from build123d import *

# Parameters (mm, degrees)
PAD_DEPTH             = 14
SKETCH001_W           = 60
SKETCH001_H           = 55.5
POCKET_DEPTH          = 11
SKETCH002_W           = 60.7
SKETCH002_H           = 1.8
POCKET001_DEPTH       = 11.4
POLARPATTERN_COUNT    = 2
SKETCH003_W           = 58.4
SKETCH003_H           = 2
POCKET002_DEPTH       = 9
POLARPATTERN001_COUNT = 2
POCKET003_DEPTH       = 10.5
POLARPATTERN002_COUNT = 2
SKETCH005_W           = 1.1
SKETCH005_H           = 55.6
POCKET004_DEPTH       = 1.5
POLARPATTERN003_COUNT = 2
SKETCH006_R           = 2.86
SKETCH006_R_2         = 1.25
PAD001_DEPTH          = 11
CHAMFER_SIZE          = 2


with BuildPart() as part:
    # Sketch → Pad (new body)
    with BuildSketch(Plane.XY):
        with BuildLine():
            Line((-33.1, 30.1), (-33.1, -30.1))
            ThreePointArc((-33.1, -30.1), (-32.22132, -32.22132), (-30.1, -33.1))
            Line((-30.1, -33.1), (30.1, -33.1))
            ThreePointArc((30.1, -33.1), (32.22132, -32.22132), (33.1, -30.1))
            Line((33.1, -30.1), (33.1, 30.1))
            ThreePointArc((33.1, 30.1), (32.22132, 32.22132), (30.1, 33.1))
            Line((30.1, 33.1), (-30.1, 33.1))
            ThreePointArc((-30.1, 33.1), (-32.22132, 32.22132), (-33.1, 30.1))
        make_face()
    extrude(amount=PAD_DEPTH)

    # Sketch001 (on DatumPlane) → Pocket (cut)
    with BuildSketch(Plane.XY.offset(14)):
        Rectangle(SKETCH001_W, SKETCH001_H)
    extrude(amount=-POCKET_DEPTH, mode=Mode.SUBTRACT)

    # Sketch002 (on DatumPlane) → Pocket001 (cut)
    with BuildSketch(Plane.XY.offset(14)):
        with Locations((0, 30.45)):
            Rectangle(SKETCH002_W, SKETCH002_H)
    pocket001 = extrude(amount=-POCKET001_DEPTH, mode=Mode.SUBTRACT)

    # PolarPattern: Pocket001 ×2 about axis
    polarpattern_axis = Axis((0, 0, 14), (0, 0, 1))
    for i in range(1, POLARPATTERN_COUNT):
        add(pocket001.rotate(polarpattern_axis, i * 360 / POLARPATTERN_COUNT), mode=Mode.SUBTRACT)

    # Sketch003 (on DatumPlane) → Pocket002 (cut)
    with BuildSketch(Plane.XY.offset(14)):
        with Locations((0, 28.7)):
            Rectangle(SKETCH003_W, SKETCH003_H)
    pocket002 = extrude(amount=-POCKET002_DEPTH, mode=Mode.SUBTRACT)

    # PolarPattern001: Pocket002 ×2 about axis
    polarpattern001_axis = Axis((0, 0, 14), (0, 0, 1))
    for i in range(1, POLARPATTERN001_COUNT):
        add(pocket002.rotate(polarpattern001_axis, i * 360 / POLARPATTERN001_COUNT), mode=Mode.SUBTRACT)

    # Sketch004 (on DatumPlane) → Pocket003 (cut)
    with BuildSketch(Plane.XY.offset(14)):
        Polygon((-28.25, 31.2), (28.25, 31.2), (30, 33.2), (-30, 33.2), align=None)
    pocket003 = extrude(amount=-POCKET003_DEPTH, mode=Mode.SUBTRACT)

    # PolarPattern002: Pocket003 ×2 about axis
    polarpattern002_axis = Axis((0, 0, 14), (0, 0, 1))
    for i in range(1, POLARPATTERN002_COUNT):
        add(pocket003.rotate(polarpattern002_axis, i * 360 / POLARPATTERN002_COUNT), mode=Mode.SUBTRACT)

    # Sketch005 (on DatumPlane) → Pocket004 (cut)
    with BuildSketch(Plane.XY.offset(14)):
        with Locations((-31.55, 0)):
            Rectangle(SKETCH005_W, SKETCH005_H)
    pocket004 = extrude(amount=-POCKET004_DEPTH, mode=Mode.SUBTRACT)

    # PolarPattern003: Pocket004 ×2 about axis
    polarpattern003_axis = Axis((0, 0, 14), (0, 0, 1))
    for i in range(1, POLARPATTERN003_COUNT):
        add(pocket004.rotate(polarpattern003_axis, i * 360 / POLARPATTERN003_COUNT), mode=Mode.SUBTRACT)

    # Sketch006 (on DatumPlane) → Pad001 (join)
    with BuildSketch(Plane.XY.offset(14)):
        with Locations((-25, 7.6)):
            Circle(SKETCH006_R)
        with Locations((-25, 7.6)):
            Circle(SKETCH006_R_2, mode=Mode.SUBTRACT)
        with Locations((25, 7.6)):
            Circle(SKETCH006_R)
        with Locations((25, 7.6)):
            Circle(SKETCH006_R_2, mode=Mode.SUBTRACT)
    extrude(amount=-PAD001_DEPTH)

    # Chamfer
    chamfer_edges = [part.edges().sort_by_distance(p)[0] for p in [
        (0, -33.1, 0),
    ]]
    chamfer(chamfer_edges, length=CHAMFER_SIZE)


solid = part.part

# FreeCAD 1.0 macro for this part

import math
import FreeCAD as App
import Part
import Sketcher
Q = App.Units.Quantity


def edges_at(feature, points):
    """Names of the edges that pass closest to the given points."""
    edges = feature.Shape.Edges
    near = lambda p: min(range(len(edges)), key=lambda i: edges[i].distToShape(Part.Vertex(*p))[0])
    return sorted({f"Edge{near(p) + 1}" for p in points})

doc = App.newDocument("Part")
params = doc.addObject("Spreadsheet::Sheet", "Params")
for row, (alias, value) in enumerate([
    ("sketch1_radius", "3.000001 mm"),
    ("sketch1_width", "60.2 mm"),
    ("pad1_length", "14 mm"),
    ("sketch2_width", "60 mm"),
    ("sketch2_height", "55.5 mm"),
    ("pocket1_length", "11 mm"),
    ("sketch3_width", "60.7 mm"),
    ("sketch3_height", "1.8 mm"),
    ("pocket2_length", "11.4 mm"),
    ("sketch4_height", "2 mm"),
    ("sketch4_width", "58.4 mm"),
    ("pocket3_length", "9 mm"),
    ("sketch5_width", "60 mm"),
    ("sketch5_width2", "56.5 mm"),
    ("pocket4_length", "10.5 mm"),
    ("sketch6_width", "1.1 mm"),
    ("sketch6_height", "55.6 mm"),
    ("pocket5_length", "1.5 mm"),
    ("sketch7_diameter", "2.5 mm"),
    ("sketch7_diameter2", "5.72 mm"),
    ("pad2_length", "11 mm"),
    ("chamfer_size", "2 mm"),
], start=1):
    params.set(f"A{row}", alias)
    params.set(f"B{row}", "=" + value)
    params.setAlias(f"B{row}", alias)

body = doc.addObject("PartDesign::Body", "Body")

# Sketch on XY plane
sketch1 = doc.addObject("Sketcher::SketchObject", "Sketch")
body.addObject(sketch1)
sketch1.AttachmentSupport = (doc.XY_Plane, [""])
sketch1.MapMode = "FlatFace"
sketch1.addGeometry(Part.LineSegment(App.Vector(-33.1, 30.1, 0), App.Vector(-33.1, -30.1, 0)), False)
sketch1.addGeometry(Part.ArcOfCircle(Part.Circle(App.Vector(-30.099999, -30.099999, 0), App.Vector(0, 0, 1), 3.000001), math.radians(-179.999978), math.radians(-90.000022)), False)
sketch1.addGeometry(Part.LineSegment(App.Vector(-30.1, -33.1, 0), App.Vector(30.1, -33.1, 0)), False)
sketch1.addGeometry(Part.ArcOfCircle(Part.Circle(App.Vector(30.099999, -30.099999, 0), App.Vector(0, 0, 1), 3.000001), math.radians(-89.999978), math.radians(-0.000022)), False)
sketch1.addGeometry(Part.LineSegment(App.Vector(33.1, -30.1, 0), App.Vector(33.1, 30.1, 0)), False)
sketch1.addGeometry(Part.ArcOfCircle(Part.Circle(App.Vector(30.099999, 30.099999, 0), App.Vector(0, 0, 1), 3.000001), math.radians(0.000022), math.radians(89.999978)), False)
sketch1.addGeometry(Part.LineSegment(App.Vector(30.1, 33.1, 0), App.Vector(-30.1, 33.1, 0)), False)
sketch1.addGeometry(Part.ArcOfCircle(Part.Circle(App.Vector(-30.099999, 30.099999, 0), App.Vector(0, 0, 1), 3.000001), math.radians(90.000022), math.radians(179.999978)), False)
sketch1.addConstraint(Sketcher.Constraint("Tangent", 0, 2, 1, 1))
sketch1.addConstraint(Sketcher.Constraint("Tangent", 1, 2, 2, 1))
sketch1.addConstraint(Sketcher.Constraint("Tangent", 2, 2, 3, 1))
sketch1.addConstraint(Sketcher.Constraint("Tangent", 3, 2, 4, 1))
sketch1.addConstraint(Sketcher.Constraint("Tangent", 4, 2, 5, 1))
sketch1.addConstraint(Sketcher.Constraint("Tangent", 5, 2, 6, 1))
sketch1.addConstraint(Sketcher.Constraint("Tangent", 6, 2, 7, 1))
sketch1.addConstraint(Sketcher.Constraint("Tangent", 7, 2, 0, 1))
sketch1.addConstraint(Sketcher.Constraint("Vertical", 0))
sketch1.addConstraint(Sketcher.Constraint("Horizontal", 2))
sketch1.addConstraint(Sketcher.Constraint("Vertical", 4))
sketch1.addConstraint(Sketcher.Constraint("Horizontal", 6))
sketch1.addConstraint(Sketcher.Constraint("Equal", 1, 3))
sketch1.addConstraint(Sketcher.Constraint("Equal", 3, 5))
sketch1.addConstraint(Sketcher.Constraint("Equal", 5, 7))
sketch1.addConstraint(Sketcher.Constraint("Symmetric", 1, 3, 5, 3, -1, 1))
sketch1.addConstraint(Sketcher.Constraint("Equal", 6, 0))
sketch1.addConstraint(Sketcher.Constraint("Radius", 1, Q("3.000001 mm")))
sketch1.addConstraint(Sketcher.Constraint("DistanceX", 2, 1, 2, 2, Q("60.2 mm")))
sketch1.setExpression("Constraints[17]", "Params.sketch1_radius")
sketch1.setExpression("Constraints[18]", "Params.sketch1_width")
pad1 = doc.addObject("PartDesign::Pad", "Pad")
body.addObject(pad1)
pad1.Profile = sketch1
pad1.setExpression("Length", "Params.pad1_length")

# Sketch on XY plane
sketch2 = doc.addObject("Sketcher::SketchObject", "Sketch001")
body.addObject(sketch2)
sketch2.AttachmentSupport = (doc.XY_Plane, [""])
sketch2.MapMode = "FlatFace"
sketch2.AttachmentOffset = App.Placement(App.Vector(0, 0, 14), App.Rotation())
sketch2.addGeometry(Part.LineSegment(App.Vector(-30, 27.75, 0), App.Vector(-30, -27.75, 0)), False)
sketch2.addGeometry(Part.LineSegment(App.Vector(-30, -27.75, 0), App.Vector(30, -27.75, 0)), False)
sketch2.addGeometry(Part.LineSegment(App.Vector(30, -27.75, 0), App.Vector(30, 27.75, 0)), False)
sketch2.addGeometry(Part.LineSegment(App.Vector(30, 27.75, 0), App.Vector(-30, 27.75, 0)), False)
sketch2.addConstraint(Sketcher.Constraint("Coincident", 0, 2, 1, 1))
sketch2.addConstraint(Sketcher.Constraint("Coincident", 1, 2, 2, 1))
sketch2.addConstraint(Sketcher.Constraint("Coincident", 2, 2, 3, 1))
sketch2.addConstraint(Sketcher.Constraint("Coincident", 3, 2, 0, 1))
sketch2.addConstraint(Sketcher.Constraint("Vertical", 0))
sketch2.addConstraint(Sketcher.Constraint("Horizontal", 1))
sketch2.addConstraint(Sketcher.Constraint("Vertical", 2))
sketch2.addConstraint(Sketcher.Constraint("Horizontal", 3))
sketch2.addConstraint(Sketcher.Constraint("Symmetric", 0, 2, 2, 2, -1, 1))
sketch2.addConstraint(Sketcher.Constraint("DistanceX", 1, 1, 1, 2, Q("60 mm")))
sketch2.addConstraint(Sketcher.Constraint("DistanceY", 0, 2, 0, 1, Q("55.5 mm")))
sketch2.setExpression("Constraints[9]", "Params.sketch2_width")
sketch2.setExpression("Constraints[10]", "Params.sketch2_height")
pocket1 = doc.addObject("PartDesign::Pocket", "Pocket")
body.addObject(pocket1)
pocket1.Profile = sketch2
pocket1.setExpression("Length", "Params.pocket1_length")

# Sketch on XY plane
sketch3 = doc.addObject("Sketcher::SketchObject", "Sketch002")
body.addObject(sketch3)
sketch3.AttachmentSupport = (doc.XY_Plane, [""])
sketch3.MapMode = "FlatFace"
sketch3.AttachmentOffset = App.Placement(App.Vector(0, 0, 14), App.Rotation())
sketch3.addGeometry(Part.LineSegment(App.Vector(-30.35, 31.35, 0), App.Vector(-30.35, 29.55, 0)), False)
sketch3.addGeometry(Part.LineSegment(App.Vector(-30.35, 29.55, 0), App.Vector(30.35, 29.55, 0)), False)
sketch3.addGeometry(Part.LineSegment(App.Vector(30.35, 29.55, 0), App.Vector(30.35, 31.35, 0)), False)
sketch3.addGeometry(Part.LineSegment(App.Vector(30.35, 31.35, 0), App.Vector(-30.35, 31.35, 0)), False)
sketch3.addConstraint(Sketcher.Constraint("Coincident", 0, 2, 1, 1))
sketch3.addConstraint(Sketcher.Constraint("Coincident", 1, 2, 2, 1))
sketch3.addConstraint(Sketcher.Constraint("Coincident", 2, 2, 3, 1))
sketch3.addConstraint(Sketcher.Constraint("Coincident", 3, 2, 0, 1))
sketch3.addConstraint(Sketcher.Constraint("Vertical", 0))
sketch3.addConstraint(Sketcher.Constraint("Horizontal", 1))
sketch3.addConstraint(Sketcher.Constraint("Vertical", 2))
sketch3.addConstraint(Sketcher.Constraint("Horizontal", 3))
sketch3.addConstraint(Sketcher.Constraint("DistanceX", 1, 1, 1, 2, Q("60.7 mm")))
sketch3.addConstraint(Sketcher.Constraint("DistanceY", 0, 2, 0, 1, Q("1.8 mm")))
sketch3.addConstraint(Sketcher.Constraint("DistanceX", 0, 2, -1, 1, Q("30.35 mm")))
sketch3.addConstraint(Sketcher.Constraint("DistanceY", -1, 1, 0, 2, Q("29.55 mm")))
sketch3.setExpression("Constraints[8]", "Params.sketch3_width")
sketch3.setExpression("Constraints[9]", "Params.sketch3_height")
pocket2 = doc.addObject("PartDesign::Pocket", "Pocket001")
body.addObject(pocket2)
pocket2.Profile = sketch3
pocket2.setExpression("Length", "Params.pocket2_length")
doc.recompute()

polarpattern = doc.addObject("PartDesign::PolarPattern", "PolarPattern")
body.addObject(polarpattern)
polarpattern.Originals = [pocket2]
polarpattern.Axis = (doc.Z_Axis, [""])
polarpattern.Angle = 360
polarpattern.Occurrences = 2
body.Tip = polarpattern

# Sketch on XY plane
sketch4 = doc.addObject("Sketcher::SketchObject", "Sketch003")
body.addObject(sketch4)
sketch4.AttachmentSupport = (doc.XY_Plane, [""])
sketch4.MapMode = "FlatFace"
sketch4.AttachmentOffset = App.Placement(App.Vector(0, 0, 14), App.Rotation())
sketch4.addGeometry(Part.LineSegment(App.Vector(-29.2, 29.7, 0), App.Vector(-29.2, 27.7, 0)), False)
sketch4.addGeometry(Part.LineSegment(App.Vector(-29.2, 27.7, 0), App.Vector(29.2, 27.7, 0)), False)
sketch4.addGeometry(Part.LineSegment(App.Vector(29.2, 27.7, 0), App.Vector(29.2, 29.7, 0)), False)
sketch4.addGeometry(Part.LineSegment(App.Vector(29.2, 29.7, 0), App.Vector(-29.2, 29.7, 0)), False)
sketch4.addConstraint(Sketcher.Constraint("Coincident", 0, 2, 1, 1))
sketch4.addConstraint(Sketcher.Constraint("Coincident", 1, 2, 2, 1))
sketch4.addConstraint(Sketcher.Constraint("Coincident", 2, 2, 3, 1))
sketch4.addConstraint(Sketcher.Constraint("Coincident", 3, 2, 0, 1))
sketch4.addConstraint(Sketcher.Constraint("Vertical", 0))
sketch4.addConstraint(Sketcher.Constraint("Horizontal", 1))
sketch4.addConstraint(Sketcher.Constraint("Vertical", 2))
sketch4.addConstraint(Sketcher.Constraint("Horizontal", 3))
sketch4.addConstraint(Sketcher.Constraint("DistanceY", 0, 2, 0, 1, Q("2 mm")))
sketch4.addConstraint(Sketcher.Constraint("DistanceX", 1, 1, 1, 2, Q("58.4 mm")))
sketch4.addConstraint(Sketcher.Constraint("DistanceX", 0, 2, -1, 1, Q("29.2 mm")))
sketch4.addConstraint(Sketcher.Constraint("DistanceY", -1, 1, 0, 2, Q("27.7 mm")))
sketch4.setExpression("Constraints[8]", "Params.sketch4_height")
sketch4.setExpression("Constraints[9]", "Params.sketch4_width")
pocket3 = doc.addObject("PartDesign::Pocket", "Pocket002")
body.addObject(pocket3)
pocket3.Profile = sketch4
pocket3.setExpression("Length", "Params.pocket3_length")
doc.recompute()

polarpattern2 = doc.addObject("PartDesign::PolarPattern", "PolarPattern001")
body.addObject(polarpattern2)
polarpattern2.Originals = [pocket3]
polarpattern2.Axis = (doc.Z_Axis, [""])
polarpattern2.Angle = 360
polarpattern2.Occurrences = 2
body.Tip = polarpattern2

# Sketch on XY plane
sketch5 = doc.addObject("Sketcher::SketchObject", "Sketch004")
body.addObject(sketch5)
sketch5.AttachmentSupport = (doc.XY_Plane, [""])
sketch5.MapMode = "FlatFace"
sketch5.AttachmentOffset = App.Placement(App.Vector(0, 0, 14), App.Rotation())
sketch5.addGeometry(Part.LineSegment(App.Vector(-28.25, 31.2, 0), App.Vector(28.25, 31.2, 0)), False)
sketch5.addGeometry(Part.LineSegment(App.Vector(28.25, 31.2, 0), App.Vector(30, 33.2, 0)), False)
sketch5.addGeometry(Part.LineSegment(App.Vector(30, 33.2, 0), App.Vector(-30, 33.2, 0)), False)
sketch5.addGeometry(Part.LineSegment(App.Vector(-30, 33.2, 0), App.Vector(-28.25, 31.2, 0)), False)
sketch5.addConstraint(Sketcher.Constraint("Coincident", 0, 2, 1, 1))
sketch5.addConstraint(Sketcher.Constraint("Coincident", 1, 2, 2, 1))
sketch5.addConstraint(Sketcher.Constraint("Coincident", 2, 2, 3, 1))
sketch5.addConstraint(Sketcher.Constraint("Coincident", 3, 2, 0, 1))
sketch5.addConstraint(Sketcher.Constraint("Horizontal", 0))
sketch5.addConstraint(Sketcher.Constraint("Horizontal", 2))
sketch5.addConstraint(Sketcher.Constraint("Equal", 1, 3))
sketch5.addConstraint(Sketcher.Constraint("DistanceX", 2, 2, 2, 1, Q("60 mm")))
sketch5.addConstraint(Sketcher.Constraint("DistanceX", 0, 1, 0, 2, Q("56.5 mm")))
sketch5.addConstraint(Sketcher.Constraint("DistanceX", -1, 1, 1, 2, Q("30 mm")))
sketch5.addConstraint(Sketcher.Constraint("DistanceY", 0, 2, 1, 2, Q("2 mm")))
sketch5.addConstraint(Sketcher.Constraint("DistanceY", -1, 1, 0, 2, Q("31.2 mm")))
sketch5.setExpression("Constraints[7]", "Params.sketch5_width")
sketch5.setExpression("Constraints[8]", "Params.sketch5_width2")
pocket4 = doc.addObject("PartDesign::Pocket", "Pocket003")
body.addObject(pocket4)
pocket4.Profile = sketch5
pocket4.setExpression("Length", "Params.pocket4_length")
doc.recompute()

polarpattern3 = doc.addObject("PartDesign::PolarPattern", "PolarPattern002")
body.addObject(polarpattern3)
polarpattern3.Originals = [pocket4]
polarpattern3.Axis = (doc.Z_Axis, [""])
polarpattern3.Angle = 360
polarpattern3.Occurrences = 2
body.Tip = polarpattern3

# Sketch on XY plane
sketch6 = doc.addObject("Sketcher::SketchObject", "Sketch005")
body.addObject(sketch6)
sketch6.AttachmentSupport = (doc.XY_Plane, [""])
sketch6.MapMode = "FlatFace"
sketch6.AttachmentOffset = App.Placement(App.Vector(0, 0, 14), App.Rotation())
sketch6.addGeometry(Part.LineSegment(App.Vector(-32.1, 27.8, 0), App.Vector(-32.1, -27.8, 0)), False)
sketch6.addGeometry(Part.LineSegment(App.Vector(-32.1, -27.8, 0), App.Vector(-31, -27.8, 0)), False)
sketch6.addGeometry(Part.LineSegment(App.Vector(-31, -27.8, 0), App.Vector(-31, 27.8, 0)), False)
sketch6.addGeometry(Part.LineSegment(App.Vector(-31, 27.8, 0), App.Vector(-32.1, 27.8, 0)), False)
sketch6.addConstraint(Sketcher.Constraint("Coincident", 0, 2, 1, 1))
sketch6.addConstraint(Sketcher.Constraint("Coincident", 1, 2, 2, 1))
sketch6.addConstraint(Sketcher.Constraint("Coincident", 2, 2, 3, 1))
sketch6.addConstraint(Sketcher.Constraint("Coincident", 3, 2, 0, 1))
sketch6.addConstraint(Sketcher.Constraint("Vertical", 0))
sketch6.addConstraint(Sketcher.Constraint("Horizontal", 1))
sketch6.addConstraint(Sketcher.Constraint("Vertical", 2))
sketch6.addConstraint(Sketcher.Constraint("Horizontal", 3))
sketch6.addConstraint(Sketcher.Constraint("DistanceX", 1, 1, 1, 2, Q("1.1 mm")))
sketch6.addConstraint(Sketcher.Constraint("DistanceY", 0, 2, 0, 1, Q("55.6 mm")))
sketch6.addConstraint(Sketcher.Constraint("DistanceX", 1, 2, -1, 1, Q("31 mm")))
sketch6.addConstraint(Sketcher.Constraint("DistanceY", 0, 2, -1, 1, Q("27.8 mm")))
sketch6.setExpression("Constraints[8]", "Params.sketch6_width")
sketch6.setExpression("Constraints[9]", "Params.sketch6_height")
pocket5 = doc.addObject("PartDesign::Pocket", "Pocket004")
body.addObject(pocket5)
pocket5.Profile = sketch6
pocket5.setExpression("Length", "Params.pocket5_length")
doc.recompute()

polarpattern4 = doc.addObject("PartDesign::PolarPattern", "PolarPattern003")
body.addObject(polarpattern4)
polarpattern4.Originals = [pocket5]
polarpattern4.Axis = (doc.Z_Axis, [""])
polarpattern4.Angle = 360
polarpattern4.Occurrences = 2
body.Tip = polarpattern4

# Sketch on XY plane
sketch7 = doc.addObject("Sketcher::SketchObject", "Sketch006")
body.addObject(sketch7)
sketch7.AttachmentSupport = (doc.XY_Plane, [""])
sketch7.MapMode = "FlatFace"
sketch7.AttachmentOffset = App.Placement(App.Vector(0, 0, 14), App.Rotation())
sketch7.addGeometry(Part.Circle(App.Vector(-25, 7.6, 0), App.Vector(0, 0, 1), 2.86), False)
sketch7.addGeometry(Part.Circle(App.Vector(-25, 7.6, 0), App.Vector(0, 0, 1), 1.25), False)
sketch7.addGeometry(Part.Circle(App.Vector(25, 7.6, 0), App.Vector(0, 0, 1), 2.86), False)
sketch7.addGeometry(Part.Circle(App.Vector(25, 7.6, 0), App.Vector(0, 0, 1), 1.25), False)
sketch7.addConstraint(Sketcher.Constraint("Coincident", 1, 3, 0, 3))
sketch7.addConstraint(Sketcher.Constraint("Coincident", 3, 3, 2, 3))
sketch7.addConstraint(Sketcher.Constraint("Equal", 0, 2))
sketch7.addConstraint(Sketcher.Constraint("Equal", 1, 3))
sketch7.addConstraint(Sketcher.Constraint("Symmetric", 0, 3, 2, 3, -2))
sketch7.addConstraint(Sketcher.Constraint("Diameter", 1, Q("2.5 mm")))
sketch7.addConstraint(Sketcher.Constraint("Diameter", 0, Q("5.72 mm")))
sketch7.addConstraint(Sketcher.Constraint("DistanceX", 0, 3, -1, 1, Q("25 mm")))
sketch7.addConstraint(Sketcher.Constraint("DistanceY", -1, 1, 0, 3, Q("7.6 mm")))
sketch7.setExpression("Constraints[5]", "Params.sketch7_diameter")
sketch7.setExpression("Constraints[6]", "Params.sketch7_diameter2")
pad2 = doc.addObject("PartDesign::Pad", "Pad001")
body.addObject(pad2)
pad2.Profile = sketch7
pad2.setExpression("Length", "Params.pad2_length")
pad2.Reversed = True
doc.recompute()

chamfer = doc.addObject("PartDesign::Chamfer", "Chamfer")
body.addObject(chamfer)
chamfer.Base = (pad2, edges_at(pad2, [(0, -33.1, 0)]))
chamfer.setExpression("Size", "Params.chamfer_size")

doc.recompute()
